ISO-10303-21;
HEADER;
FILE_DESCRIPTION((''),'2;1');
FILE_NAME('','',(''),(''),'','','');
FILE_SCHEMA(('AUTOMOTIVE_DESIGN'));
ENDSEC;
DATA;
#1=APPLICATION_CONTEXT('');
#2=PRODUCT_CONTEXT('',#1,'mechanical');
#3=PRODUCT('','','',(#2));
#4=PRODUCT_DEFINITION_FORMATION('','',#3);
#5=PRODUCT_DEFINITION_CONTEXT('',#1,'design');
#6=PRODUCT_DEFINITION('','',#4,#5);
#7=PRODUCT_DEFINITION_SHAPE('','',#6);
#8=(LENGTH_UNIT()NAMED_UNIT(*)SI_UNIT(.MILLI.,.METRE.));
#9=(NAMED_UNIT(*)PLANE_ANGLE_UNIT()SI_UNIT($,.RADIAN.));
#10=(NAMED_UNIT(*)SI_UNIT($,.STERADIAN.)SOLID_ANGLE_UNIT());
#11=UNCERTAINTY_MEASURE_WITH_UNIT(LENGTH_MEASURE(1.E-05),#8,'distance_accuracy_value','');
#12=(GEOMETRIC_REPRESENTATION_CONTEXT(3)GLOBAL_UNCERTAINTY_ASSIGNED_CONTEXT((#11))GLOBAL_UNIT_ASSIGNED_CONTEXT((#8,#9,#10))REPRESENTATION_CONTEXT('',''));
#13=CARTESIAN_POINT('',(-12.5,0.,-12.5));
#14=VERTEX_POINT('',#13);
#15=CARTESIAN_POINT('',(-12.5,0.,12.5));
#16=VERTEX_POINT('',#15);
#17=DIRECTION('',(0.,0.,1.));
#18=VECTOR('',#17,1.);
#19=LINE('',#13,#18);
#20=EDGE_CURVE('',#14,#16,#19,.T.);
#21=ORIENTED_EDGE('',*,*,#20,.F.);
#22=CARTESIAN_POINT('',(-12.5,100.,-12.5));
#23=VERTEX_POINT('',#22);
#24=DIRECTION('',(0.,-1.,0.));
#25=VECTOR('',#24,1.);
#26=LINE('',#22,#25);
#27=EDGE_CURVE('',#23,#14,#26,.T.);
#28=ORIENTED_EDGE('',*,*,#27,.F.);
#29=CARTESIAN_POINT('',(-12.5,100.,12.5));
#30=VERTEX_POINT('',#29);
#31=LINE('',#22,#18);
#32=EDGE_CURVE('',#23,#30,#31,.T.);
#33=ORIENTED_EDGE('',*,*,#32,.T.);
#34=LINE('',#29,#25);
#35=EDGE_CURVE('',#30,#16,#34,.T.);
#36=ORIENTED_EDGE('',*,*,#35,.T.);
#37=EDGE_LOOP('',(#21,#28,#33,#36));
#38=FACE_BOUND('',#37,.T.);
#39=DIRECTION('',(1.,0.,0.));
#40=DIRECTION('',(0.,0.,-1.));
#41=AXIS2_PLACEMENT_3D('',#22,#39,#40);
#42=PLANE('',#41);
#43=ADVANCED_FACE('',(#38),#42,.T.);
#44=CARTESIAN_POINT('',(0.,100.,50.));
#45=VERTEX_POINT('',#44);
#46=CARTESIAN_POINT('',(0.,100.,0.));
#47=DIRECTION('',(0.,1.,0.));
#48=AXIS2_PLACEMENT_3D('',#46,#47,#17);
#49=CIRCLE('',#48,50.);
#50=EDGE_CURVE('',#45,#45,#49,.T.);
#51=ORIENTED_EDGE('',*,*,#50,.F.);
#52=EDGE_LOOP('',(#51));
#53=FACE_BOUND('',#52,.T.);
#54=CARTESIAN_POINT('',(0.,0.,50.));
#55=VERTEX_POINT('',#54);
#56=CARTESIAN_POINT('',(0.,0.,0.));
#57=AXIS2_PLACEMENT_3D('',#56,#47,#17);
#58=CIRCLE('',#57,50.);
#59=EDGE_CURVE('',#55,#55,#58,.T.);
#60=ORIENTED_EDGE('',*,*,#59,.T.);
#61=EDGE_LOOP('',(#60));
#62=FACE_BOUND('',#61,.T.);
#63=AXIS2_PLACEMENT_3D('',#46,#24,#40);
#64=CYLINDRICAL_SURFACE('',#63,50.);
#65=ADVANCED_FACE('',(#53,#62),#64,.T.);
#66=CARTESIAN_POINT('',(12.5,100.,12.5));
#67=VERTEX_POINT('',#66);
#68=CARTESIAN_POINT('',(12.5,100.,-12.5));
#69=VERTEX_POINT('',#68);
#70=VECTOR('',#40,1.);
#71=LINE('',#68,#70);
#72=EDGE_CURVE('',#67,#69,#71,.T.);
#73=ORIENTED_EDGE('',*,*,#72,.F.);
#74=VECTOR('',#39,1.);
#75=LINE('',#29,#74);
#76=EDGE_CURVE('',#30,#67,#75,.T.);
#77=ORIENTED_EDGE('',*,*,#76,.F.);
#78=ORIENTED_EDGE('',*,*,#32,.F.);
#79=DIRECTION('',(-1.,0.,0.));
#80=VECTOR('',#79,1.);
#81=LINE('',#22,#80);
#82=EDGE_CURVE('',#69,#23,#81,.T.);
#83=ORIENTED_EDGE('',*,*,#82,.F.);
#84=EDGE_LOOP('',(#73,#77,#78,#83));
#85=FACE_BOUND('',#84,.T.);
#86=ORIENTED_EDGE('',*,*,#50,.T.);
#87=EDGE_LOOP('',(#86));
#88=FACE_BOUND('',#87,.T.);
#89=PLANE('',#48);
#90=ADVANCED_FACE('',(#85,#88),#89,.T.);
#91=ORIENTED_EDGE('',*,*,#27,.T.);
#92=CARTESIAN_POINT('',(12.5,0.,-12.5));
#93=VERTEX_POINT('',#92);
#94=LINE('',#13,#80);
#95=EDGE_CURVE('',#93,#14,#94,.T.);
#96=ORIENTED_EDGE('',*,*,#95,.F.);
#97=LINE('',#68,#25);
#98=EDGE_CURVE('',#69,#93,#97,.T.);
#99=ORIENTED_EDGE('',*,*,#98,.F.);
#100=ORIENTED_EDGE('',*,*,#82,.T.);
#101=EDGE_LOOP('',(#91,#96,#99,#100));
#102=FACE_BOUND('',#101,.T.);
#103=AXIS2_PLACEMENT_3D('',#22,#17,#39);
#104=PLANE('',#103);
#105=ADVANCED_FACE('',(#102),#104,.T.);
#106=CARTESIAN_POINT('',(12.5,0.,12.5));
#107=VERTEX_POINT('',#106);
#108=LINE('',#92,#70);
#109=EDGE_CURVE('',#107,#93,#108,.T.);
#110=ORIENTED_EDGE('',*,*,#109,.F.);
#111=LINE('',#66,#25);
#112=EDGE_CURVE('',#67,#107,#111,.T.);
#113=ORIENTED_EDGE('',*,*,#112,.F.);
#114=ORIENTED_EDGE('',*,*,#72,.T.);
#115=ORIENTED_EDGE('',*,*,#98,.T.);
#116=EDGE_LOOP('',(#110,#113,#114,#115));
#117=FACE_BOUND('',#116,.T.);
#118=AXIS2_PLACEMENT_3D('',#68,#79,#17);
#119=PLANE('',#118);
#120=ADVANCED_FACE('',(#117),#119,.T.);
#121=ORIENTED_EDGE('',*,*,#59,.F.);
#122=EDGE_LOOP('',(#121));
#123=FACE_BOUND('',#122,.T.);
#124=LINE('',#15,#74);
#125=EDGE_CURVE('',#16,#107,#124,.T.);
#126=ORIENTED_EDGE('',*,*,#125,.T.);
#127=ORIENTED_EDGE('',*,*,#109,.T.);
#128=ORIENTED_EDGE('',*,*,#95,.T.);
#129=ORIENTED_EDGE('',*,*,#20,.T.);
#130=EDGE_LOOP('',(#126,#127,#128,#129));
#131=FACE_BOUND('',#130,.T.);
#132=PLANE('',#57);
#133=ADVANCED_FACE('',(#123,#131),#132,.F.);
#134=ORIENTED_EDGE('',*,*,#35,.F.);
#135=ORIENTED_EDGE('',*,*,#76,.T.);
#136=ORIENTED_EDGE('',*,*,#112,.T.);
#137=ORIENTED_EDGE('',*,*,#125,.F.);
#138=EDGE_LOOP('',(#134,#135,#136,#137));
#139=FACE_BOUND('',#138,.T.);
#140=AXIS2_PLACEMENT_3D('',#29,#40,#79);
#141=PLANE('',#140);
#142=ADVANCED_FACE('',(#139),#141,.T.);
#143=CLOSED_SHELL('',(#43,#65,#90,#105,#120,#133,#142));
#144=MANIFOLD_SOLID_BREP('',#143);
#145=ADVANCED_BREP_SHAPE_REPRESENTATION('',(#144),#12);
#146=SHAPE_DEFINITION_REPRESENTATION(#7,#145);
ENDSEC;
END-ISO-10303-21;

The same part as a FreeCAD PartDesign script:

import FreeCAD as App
import Part
import Sketcher
from FreeCAD import Vector


def add_polygon(sketch, points):
    """Adds a closed chain of lines whose ends are joined by coincident constraints."""
    first, n = sketch.GeometryCount, len(points)
    for a, b in zip(points, points[1:] + points[:1]):
        sketch.addGeometry(Part.LineSegment(App.Vector(*a, 0), App.Vector(*b, 0)), False)
    for i in range(n):
        sketch.addConstraint(Sketcher.Constraint("Coincident", first + i, 2, first + (i + 1) % n, 1))

doc = App.newDocument("Part")
body = doc.addObject("PartDesign::Body", "Body")

# Sketch on XZ plane
sketch1 = body.newObject("Sketcher::SketchObject", "Sketch")
sketch1.AttachmentSupport = (doc.getObject("XZ_Plane"), [""])
sketch1.MapMode = "FlatFace"
sketch1.addGeometry(Part.Circle(Vector(0, 0, 0), Vector(0, 0, 1), 50), False)  # 0
add_polygon(sketch1, [(12, 12), (-12, 12), (-12, -12), (12, -12)])  # lines 1-4
sketch1.addConstraint(Sketcher.Constraint("Horizontal", 1))
sketch1.addConstraint(Sketcher.Constraint("Vertical", 2))
sketch1.addConstraint(Sketcher.Constraint("Horizontal", 3))
sketch1.addConstraint(Sketcher.Constraint("Vertical", 4))
sketch1.addConstraint(Sketcher.Constraint("Coincident", 0, 3, -1, 1))
sketch1.addConstraint(Sketcher.Constraint("Symmetric", 1, 2, 3, 2, -1, 1))
sketch1.addConstraint(Sketcher.Constraint("Equal", 3, 2))
sketch1.addConstraint(Sketcher.Constraint("Diameter", 0, 100.0))
sketch1.addConstraint(Sketcher.Constraint("DistanceX", 1, 2, 1, 1, 25.0))
pad1 = body.newObject("PartDesign::Pad", "Pad")
pad1.Profile = sketch1
pad1.Length = 100
pad1.Reversed = True

doc.recompute()
